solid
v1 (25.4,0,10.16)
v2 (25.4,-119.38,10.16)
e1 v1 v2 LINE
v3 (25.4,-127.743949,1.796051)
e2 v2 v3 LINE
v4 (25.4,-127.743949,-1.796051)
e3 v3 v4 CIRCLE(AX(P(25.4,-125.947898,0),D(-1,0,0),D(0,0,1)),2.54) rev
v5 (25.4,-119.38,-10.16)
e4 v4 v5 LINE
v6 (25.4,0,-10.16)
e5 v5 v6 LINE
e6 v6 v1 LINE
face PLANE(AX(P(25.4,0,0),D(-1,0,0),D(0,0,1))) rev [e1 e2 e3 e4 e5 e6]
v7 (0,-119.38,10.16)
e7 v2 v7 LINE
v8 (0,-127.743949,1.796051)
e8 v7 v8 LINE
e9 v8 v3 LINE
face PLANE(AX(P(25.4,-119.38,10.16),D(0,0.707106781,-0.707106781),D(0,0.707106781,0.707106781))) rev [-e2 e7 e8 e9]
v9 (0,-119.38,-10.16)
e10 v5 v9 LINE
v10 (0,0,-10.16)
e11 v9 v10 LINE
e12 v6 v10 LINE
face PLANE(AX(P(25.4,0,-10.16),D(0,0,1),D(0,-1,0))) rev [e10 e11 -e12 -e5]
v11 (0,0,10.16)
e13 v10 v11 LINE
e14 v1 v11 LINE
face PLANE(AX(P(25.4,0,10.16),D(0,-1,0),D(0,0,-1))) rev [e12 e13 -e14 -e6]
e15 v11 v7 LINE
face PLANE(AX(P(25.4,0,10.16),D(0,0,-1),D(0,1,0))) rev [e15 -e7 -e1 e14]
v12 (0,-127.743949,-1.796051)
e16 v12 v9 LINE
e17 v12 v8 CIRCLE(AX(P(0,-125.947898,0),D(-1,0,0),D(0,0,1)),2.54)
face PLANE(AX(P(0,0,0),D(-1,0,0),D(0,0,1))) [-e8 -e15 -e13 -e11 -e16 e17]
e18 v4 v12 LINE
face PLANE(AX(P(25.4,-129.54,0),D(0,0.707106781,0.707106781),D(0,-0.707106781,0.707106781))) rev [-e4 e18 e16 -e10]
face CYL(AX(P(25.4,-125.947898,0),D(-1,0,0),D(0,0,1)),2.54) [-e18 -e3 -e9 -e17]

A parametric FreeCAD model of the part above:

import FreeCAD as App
import Part
import Sketcher
from FreeCAD import Vector
Q = App.Units.Quantity


def edges_at(feature, points):
    """Names of the edges that pass closest to the given points."""
    edges = feature.Shape.Edges
    near = lambda p: min(range(len(edges)), key=lambda i: edges[i].distToShape(Part.Vertex(*p))[0])
    return sorted({f"Edge{near(p) + 1}" for p in points})


def add_polygon(sketch, points):
    """Adds a closed chain of lines whose ends are joined by coincident constraints."""
    first, n = sketch.GeometryCount, len(points)
    for a, b in zip(points, points[1:] + points[:1]):
        sketch.addGeometry(Part.LineSegment(App.Vector(*a, 0), App.Vector(*b, 0)), False)
    for i in range(n):
        sketch.addConstraint(Sketcher.Constraint("Coincident", first + i, 2, first + (i + 1) % n, 1))

doc = App.newDocument("Part")
params = doc.addObject("Spreadsheet::Sheet", "Params")
for row, (alias, value) in enumerate([
    ("sketch1_width", "4.7 in"),
    ("sketch1_height", "0.8 in"),
    ("pad1_length", "1 in"),
    ("fillet_radius", "0.1 in"),
], start=1):
    params.set(f"A{row}", alias)
    params.set(f"B{row}", "=" + value)
    params.setAlias(f"B{row}", alias)

body = doc.addObject("PartDesign::Body", "Body")

# Sketch on YZ plane
sketch1 = doc.addObject("Sketcher::SketchObject", "Sketch")
body.addObject(sketch1)
sketch1.AttachmentSupport = (doc.YZ_Plane, [""])
sketch1.MapMode = "FlatFace"
add_polygon(sketch1, [(0, 10), (-119, 10), (-130, 0), (-119, -10), (0, -10)])  # lines 0-4
sketch1.addConstraint(Sketcher.Constraint("Horizontal", 0))
sketch1.addConstraint(Sketcher.Constraint("Horizontal", 3))
sketch1.addConstraint(Sketcher.Constraint("Vertical", 4))
sketch1.addConstraint(Sketcher.Constraint("Symmetric", 3, 2, 4, 2, -1, 1))
sketch1.addConstraint(Sketcher.Constraint("PointOnObject", 1, 2, -1))
sketch1.addConstraint(Sketcher.Constraint("Perpendicular", 1, 2))
sketch1.addConstraint(Sketcher.Constraint("Vertical", 0, 2, 2, 2))
sketch1.addConstraint(Sketcher.Constraint("DistanceX", 0, 2, 0, 1, Q("4.7 in")))
sketch1.addConstraint(Sketcher.Constraint("DistanceY", 4, 1, 4, 2, Q("0.8 in")))
sketch1.setExpression("Constraints[12]", "Params.sketch1_width")
sketch1.setExpression("Constraints[13]", "Params.sketch1_height")
pad1 = doc.addObject("PartDesign::Pad", "Pad")
body.addObject(pad1)
pad1.Profile = sketch1
pad1.setExpression("Length", "Params.pad1_length")
doc.recompute()

fillet = doc.addObject("PartDesign::Fillet", "Fillet")
body.addObject(fillet)
fillet.Base = (pad1, edges_at(pad1, [(12.7, -129.54, 0)]))
fillet.setExpression("Radius", "Params.fillet_radius")

doc.recompute()
